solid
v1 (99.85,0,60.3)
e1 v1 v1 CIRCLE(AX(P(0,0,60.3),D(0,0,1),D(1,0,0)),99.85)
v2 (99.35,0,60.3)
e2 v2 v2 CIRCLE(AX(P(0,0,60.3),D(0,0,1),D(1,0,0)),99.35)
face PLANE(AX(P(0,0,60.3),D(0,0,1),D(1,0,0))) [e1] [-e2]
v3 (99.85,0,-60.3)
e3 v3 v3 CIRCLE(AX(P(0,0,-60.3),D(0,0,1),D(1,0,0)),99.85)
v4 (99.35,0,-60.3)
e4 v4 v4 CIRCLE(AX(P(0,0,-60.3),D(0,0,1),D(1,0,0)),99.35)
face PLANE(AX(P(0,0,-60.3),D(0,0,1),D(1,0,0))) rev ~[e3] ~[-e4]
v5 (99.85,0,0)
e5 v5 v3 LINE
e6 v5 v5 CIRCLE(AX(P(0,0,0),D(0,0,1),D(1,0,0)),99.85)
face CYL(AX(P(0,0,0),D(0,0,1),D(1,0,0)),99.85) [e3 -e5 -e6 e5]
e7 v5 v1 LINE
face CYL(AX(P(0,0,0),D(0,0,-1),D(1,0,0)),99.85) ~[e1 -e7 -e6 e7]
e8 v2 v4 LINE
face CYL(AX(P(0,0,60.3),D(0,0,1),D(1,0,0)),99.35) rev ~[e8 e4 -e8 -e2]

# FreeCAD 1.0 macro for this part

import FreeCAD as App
import Part
import Sketcher

doc = App.newDocument("Part")
body = doc.addObject("PartDesign::Body", "Body")

sketch1 = doc.addObject("Sketcher::SketchObject", "Sketch")
body.addObject(sketch1)
sketch1.AttachmentSupport = (doc.XY_Plane, [""])
sketch1.MapMode = "FlatFace"
sketch1.addGeometry(Part.Circle(App.Vector(0, 0, 0), App.Vector(0, 0, 1), 100), False)
sketch1.addConstraint([
    Sketcher.Constraint("Coincident", 0, 3, -1, 1),
    Sketcher.Constraint("Diameter", 0, 199.7),
])
pad1 = doc.addObject("PartDesign::Pad", "Pad")
body.addObject(pad1)
pad1.Profile = sketch1
pad1.Length = 120.6
pad1.Midplane = True

sketch2 = doc.addObject("Sketcher::SketchObject", "Sketch001")
body.addObject(sketch2)
sketch2.AttachmentSupport = (doc.XY_Plane, [""])
sketch2.MapMode = "FlatFace"
sketch2.AttachmentOffset = App.Placement(App.Vector(0, 0, 60.3), App.Rotation())
sketch2.addGeometry(Part.Circle(App.Vector(0, 0, 0), App.Vector(0, 0, 1), 99), False)
sketch2.addConstraint([
    Sketcher.Constraint("Coincident", 0, 3, -1, 1),
    Sketcher.Constraint("Diameter", 0, 198.7),
])
pocket1 = doc.addObject("PartDesign::Pocket", "Pocket")
body.addObject(pocket1)
pocket1.Profile = sketch2
pocket1.Type = "ThroughAll"

doc.recompute()
